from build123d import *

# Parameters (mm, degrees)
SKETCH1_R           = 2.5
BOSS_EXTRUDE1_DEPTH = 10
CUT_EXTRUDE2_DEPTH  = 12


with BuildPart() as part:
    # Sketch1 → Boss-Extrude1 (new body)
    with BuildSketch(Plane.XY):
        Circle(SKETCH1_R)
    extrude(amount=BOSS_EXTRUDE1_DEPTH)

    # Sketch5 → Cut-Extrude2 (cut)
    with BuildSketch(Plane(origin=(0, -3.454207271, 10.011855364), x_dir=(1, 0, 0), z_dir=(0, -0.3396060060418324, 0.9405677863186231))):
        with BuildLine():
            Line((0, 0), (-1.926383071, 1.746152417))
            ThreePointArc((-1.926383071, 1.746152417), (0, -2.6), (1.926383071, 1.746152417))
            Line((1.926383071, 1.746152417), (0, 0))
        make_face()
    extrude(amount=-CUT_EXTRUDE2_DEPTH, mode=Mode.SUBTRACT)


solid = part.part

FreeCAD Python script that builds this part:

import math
import FreeCAD as App
import Part
import Sketcher

V = App.Vector
Q = App.Units.Quantity

doc = App.newDocument("Part")
params = doc.addObject("Spreadsheet::Sheet", "Params")
for row, (alias, value) in enumerate([
    ("sketch1_diameter", "5 mm"),
    ("pad1_length", "10 mm"),
    ("sketch2_radius", "2.6 mm"),
    ("pocket1_length", "12 mm"),
], start=1):
    params.set(f"A{row}", alias)
    params.set(f"B{row}", "=" + value)
    params.setAlias(f"B{row}", alias)

body = doc.addObject("PartDesign::Body", "Body")

sketch1 = body.newObject("Sketcher::SketchObject", "Sketch")
sketch1.AttachmentSupport = (doc.getObject("XY_Plane"), [""])
sketch1.MapMode = "FlatFace"
sketch1.addGeometry(Part.Circle(V(0, 0, 0), V(0, 0, 1), 2.5), False)
sketch1.addConstraint([
    Sketcher.Constraint("Coincident", 0, 3, -1, 1),
    Sketcher.Constraint("Diameter", 0, Q("5 mm")),
])
sketch1.setExpression("Constraints[1]", "Params.sketch1_diameter")
pad1 = body.newObject("PartDesign::Pad", "Pad")
pad1.Profile = sketch1
pad1.setExpression("Length", "Params.pad1_length")

sketch2 = body.newObject("Sketcher::SketchObject", "Sketch001")
sketch2.Placement = App.Placement(V(0, -3.454207, 10.011855), App.Rotation(V(1, 0, 0), V(0, 0.940567786, 0.339606006), V(0, -0.339606006, 0.940567786), "ZXY"))
sketch2.addGeometry([
    Part.LineSegment(V(0, 0, 0), V(-1.9, 1.7, 0)),
    Part.ArcOfCircle(Part.Circle(V(0, 0, 0), V(0, 0, 1), 2.6), math.radians(138), math.radians(402)),
    Part.LineSegment(V(1.9, 1.7, 0), V(0, 0, 0)),
], False)
sketch2.addConstraint([
    Sketcher.Constraint("Coincident", 0, 2, 1, 1),
    Sketcher.Constraint("Coincident", 1, 2, 2, 1),
    Sketcher.Constraint("Coincident", 2, 2, 0, 1),
    Sketcher.Constraint("Coincident", 1, 3, -1, 1),
    Sketcher.Constraint("Coincident", 2, 2, -1, 1),
    Sketcher.Constraint("Horizontal", 0, 2, 1, 2),
    Sketcher.Constraint("Radius", 1, Q("2.6 mm")),
    Sketcher.Constraint("DistanceX", 0, 2, -1, 1, Q("1.926383 mm")),
])
sketch2.setExpression("Constraints[6]", "Params.sketch2_radius")
pocket1 = body.newObject("PartDesign::Pocket", "Pocket")
pocket1.Profile = sketch2
pocket1.setExpression("Length", "Params.pocket1_length")

doc.recompute()
